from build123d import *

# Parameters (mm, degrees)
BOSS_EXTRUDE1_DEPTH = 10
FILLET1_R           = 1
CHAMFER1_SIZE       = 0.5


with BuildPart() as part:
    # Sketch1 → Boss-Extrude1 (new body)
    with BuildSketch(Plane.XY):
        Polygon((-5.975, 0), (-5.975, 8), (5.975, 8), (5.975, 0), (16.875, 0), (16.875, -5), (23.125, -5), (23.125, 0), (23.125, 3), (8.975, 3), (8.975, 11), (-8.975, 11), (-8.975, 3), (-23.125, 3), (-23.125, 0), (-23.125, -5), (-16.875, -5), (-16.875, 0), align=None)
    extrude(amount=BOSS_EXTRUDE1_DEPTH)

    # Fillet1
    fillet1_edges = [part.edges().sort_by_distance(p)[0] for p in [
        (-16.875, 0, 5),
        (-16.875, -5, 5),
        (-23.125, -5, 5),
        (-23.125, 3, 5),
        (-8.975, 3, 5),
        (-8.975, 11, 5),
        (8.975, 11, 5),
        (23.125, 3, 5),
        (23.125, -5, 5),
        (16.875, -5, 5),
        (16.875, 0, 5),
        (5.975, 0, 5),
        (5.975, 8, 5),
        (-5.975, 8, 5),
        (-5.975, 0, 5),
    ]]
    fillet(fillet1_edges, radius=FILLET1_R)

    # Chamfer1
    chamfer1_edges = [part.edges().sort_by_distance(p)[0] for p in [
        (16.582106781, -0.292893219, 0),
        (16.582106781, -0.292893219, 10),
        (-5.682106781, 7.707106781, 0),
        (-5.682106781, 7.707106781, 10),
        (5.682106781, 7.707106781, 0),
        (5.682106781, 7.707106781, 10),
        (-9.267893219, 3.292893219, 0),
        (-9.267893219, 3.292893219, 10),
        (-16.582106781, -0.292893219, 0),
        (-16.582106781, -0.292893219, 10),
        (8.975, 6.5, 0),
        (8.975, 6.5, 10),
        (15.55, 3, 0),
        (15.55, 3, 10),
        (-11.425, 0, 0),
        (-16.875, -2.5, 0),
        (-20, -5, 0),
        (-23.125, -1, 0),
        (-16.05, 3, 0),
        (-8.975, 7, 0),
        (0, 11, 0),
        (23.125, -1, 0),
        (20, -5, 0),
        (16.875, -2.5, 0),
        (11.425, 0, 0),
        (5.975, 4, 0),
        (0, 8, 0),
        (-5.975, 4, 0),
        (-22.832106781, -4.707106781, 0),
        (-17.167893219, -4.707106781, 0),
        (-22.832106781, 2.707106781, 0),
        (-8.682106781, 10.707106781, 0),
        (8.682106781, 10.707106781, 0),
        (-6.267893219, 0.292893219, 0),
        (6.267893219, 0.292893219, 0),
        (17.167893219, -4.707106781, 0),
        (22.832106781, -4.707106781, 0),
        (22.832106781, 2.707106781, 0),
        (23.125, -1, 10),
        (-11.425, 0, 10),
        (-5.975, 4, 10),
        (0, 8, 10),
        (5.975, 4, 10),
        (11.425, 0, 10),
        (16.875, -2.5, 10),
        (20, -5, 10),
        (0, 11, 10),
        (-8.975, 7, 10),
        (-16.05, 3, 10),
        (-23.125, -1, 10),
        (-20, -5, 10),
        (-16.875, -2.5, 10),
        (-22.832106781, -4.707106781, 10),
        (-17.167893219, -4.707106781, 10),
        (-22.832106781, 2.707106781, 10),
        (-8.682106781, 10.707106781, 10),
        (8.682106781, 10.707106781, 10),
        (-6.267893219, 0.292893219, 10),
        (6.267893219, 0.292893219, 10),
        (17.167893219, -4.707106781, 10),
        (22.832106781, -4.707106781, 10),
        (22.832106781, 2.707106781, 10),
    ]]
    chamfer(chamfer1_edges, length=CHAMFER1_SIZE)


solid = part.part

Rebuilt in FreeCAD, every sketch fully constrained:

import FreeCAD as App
import Part
import Sketcher
from FreeCAD import Vector


def edges_at(feature, points):
    """Names of the edges that pass closest to the given points."""
    edges = feature.Shape.Edges
    near = lambda p: min(range(len(edges)), key=lambda i: edges[i].distToShape(Part.Vertex(*p))[0])
    return sorted({f"Edge{near(p) + 1}" for p in points})

doc = App.newDocument("Part")
body = doc.addObject("PartDesign::Body", "Body")

sketch1 = doc.addObject("Sketcher::SketchObject", "Sketch")
body.addObject(sketch1)
sketch1.AttachmentSupport = (doc.XY_Plane, [""])
sketch1.MapMode = "FlatFace"
sketch1.addGeometry([
    Part.LineSegment(Vector(-6, 0, 0), Vector(-6, 8, 0)),
    Part.LineSegment(Vector(-6, 8, 0), Vector(6, 8, 0)),
    Part.LineSegment(Vector(6, 8, 0), Vector(6, 0, 0)),
    Part.LineSegment(Vector(6, 0, 0), Vector(17, 0, 0)),
    Part.LineSegment(Vector(17, 0, 0), Vector(17, -5, 0)),
    Part.LineSegment(Vector(17, -5, 0), Vector(23, -5, 0)),
    Part.LineSegment(Vector(23, -5, 0), Vector(23, 3, 0)),
    Part.LineSegment(Vector(23, 3, 0), Vector(9, 3, 0)),
    Part.LineSegment(Vector(9, 3, 0), Vector(9, 11, 0)),
    Part.LineSegment(Vector(9, 11, 0), Vector(-9, 11, 0)),
    Part.LineSegment(Vector(-9, 11, 0), Vector(-9, 3, 0)),
    Part.LineSegment(Vector(-9, 3, 0), Vector(-23, 3, 0)),
    Part.LineSegment(Vector(-23, 3, 0), Vector(-23, -5, 0)),
    Part.LineSegment(Vector(-23, -5, 0), Vector(-17, -5, 0)),
    Part.LineSegment(Vector(-17, -5, 0), Vector(-17, 0, 0)),
    Part.LineSegment(Vector(-17, 0, 0), Vector(-6, 0, 0)),
], False)
sketch1.addConstraint([
    Sketcher.Constraint("Coincident", 0, 2, 1, 1),
    Sketcher.Constraint("Coincident", 1, 2, 2, 1),
    Sketcher.Constraint("Coincident", 2, 2, 3, 1),
    Sketcher.Constraint("Coincident", 3, 2, 4, 1),
    Sketcher.Constraint("Coincident", 4, 2, 5, 1),
    Sketcher.Constraint("Coincident", 5, 2, 6, 1),
    Sketcher.Constraint("Coincident", 6, 2, 7, 1),
    Sketcher.Constraint("Coincident", 7, 2, 8, 1),
    Sketcher.Constraint("Coincident", 8, 2, 9, 1),
    Sketcher.Constraint("Coincident", 9, 2, 10, 1),
    Sketcher.Constraint("Coincident", 10, 2, 11, 1),
    Sketcher.Constraint("Coincident", 11, 2, 12, 1),
    Sketcher.Constraint("Coincident", 12, 2, 13, 1),
    Sketcher.Constraint("Coincident", 13, 2, 14, 1),
    Sketcher.Constraint("Coincident", 14, 2, 15, 1),
    Sketcher.Constraint("Coincident", 15, 2, 0, 1),
    Sketcher.Constraint("Vertical", 0),
    Sketcher.Constraint("Horizontal", 1),
    Sketcher.Constraint("Vertical", 2),
    Sketcher.Constraint("Horizontal", 3),
    Sketcher.Constraint("Vertical", 4),
    Sketcher.Constraint("Horizontal", 5),
    Sketcher.Constraint("Vertical", 6),
    Sketcher.Constraint("Horizontal", 7),
    Sketcher.Constraint("Vertical", 8),
    Sketcher.Constraint("Horizontal", 9),
    Sketcher.Constraint("Vertical", 10),
    Sketcher.Constraint("Horizontal", 11),
    Sketcher.Constraint("Vertical", 12),
    Sketcher.Constraint("Horizontal", 13),
    Sketcher.Constraint("Vertical", 14),
    Sketcher.Constraint("Horizontal", 15),
    Sketcher.Constraint("Symmetric", 3, 2, 14, 2, -1, 1),
    Sketcher.Constraint("Symmetric", 7, 2, 10, 2, -2),
    Sketcher.Constraint("Symmetric", 5, 2, 12, 2, -2),
    Sketcher.Constraint("Symmetric", 2, 2, 15, 2, -2),
    Sketcher.Constraint("Equal", 2, 6),
    Sketcher.Constraint("Equal", 6, 8),
    Sketcher.Constraint("DistanceY", 0, 1, 0, 2, 8.0),
    Sketcher.Constraint("DistanceY", 4, 2, 4, 1, 5.0),
    Sketcher.Constraint("DistanceX", 3, 1, 3, 2, 10.9),
    Sketcher.Constraint("DistanceX", 2, 2, 7, 2, 3.0),
    Sketcher.Constraint("DistanceX", 1, 1, 1, 2, 11.95),
    Sketcher.Constraint("DistanceX", 5, 1, 5, 2, 6.25),
])
pad1 = doc.addObject("PartDesign::Pad", "Pad")
body.addObject(pad1)
pad1.Profile = sketch1
pad1.Length = 10
doc.recompute()

fillet = doc.addObject("PartDesign::Fillet", "Fillet")
body.addObject(fillet)
fillet.Base = (pad1, edges_at(pad1, [
    (-16.875, 0, 5),
    (-16.875, -5, 5),
    (-23.125, -5, 5),
    (-23.125, 3, 5),
    (-8.975, 3, 5),
    (-8.975, 11, 5),
    (8.975, 11, 5),
    (23.125, 3, 5),
    (23.125, -5, 5),
    (16.875, -5, 5),
    (16.875, 0, 5),
    (5.975, 0, 5),
    (5.975, 8, 5),
    (-5.975, 8, 5),
    (-5.975, 0, 5),
]))
fillet.Radius = 1
doc.recompute()

chamfer = doc.addObject("PartDesign::Chamfer", "Chamfer")
body.addObject(chamfer)
chamfer.Base = (fillet, edges_at(fillet, [
    (16.582, -0.293, 0),
    (16.582, -0.293, 10),
    (-5.682, 7.707, 0),
    (-5.682, 7.707, 10),
    (5.682, 7.707, 0),
    (5.682, 7.707, 10),
    (-9.268, 3.293, 0),
    (-9.268, 3.293, 10),
    (-16.582, -0.293, 0),
    (-16.582, -0.293, 10),
    (8.975, 6.5, 0),
    (8.975, 6.5, 10),
    (15.55, 3, 0),
    (15.55, 3, 10),
    (-11.425, 0, 0),
    (-16.875, -2.5, 0),
    (-20, -5, 0),
    (-23.125, -1, 0),
    (-16.05, 3, 0),
    (-8.975, 7, 0),
    (0, 11, 0),
    (23.125, -1, 0),
    (20, -5, 0),
    (16.875, -2.5, 0),
    (11.425, 0, 0),
    (5.975, 4, 0),
    (0, 8, 0),
    (-5.975, 4, 0),
    (-22.832, -4.707, 0),
    (-17.168, -4.707, 0),
    (-22.832, 2.707, 0),
    (-8.682, 10.707, 0),
    (8.682, 10.707, 0),
    (-6.268, 0.293, 0),
    (6.268, 0.293, 0),
    (17.168, -4.707, 0),
    (22.832, -4.707, 0),
    (22.832, 2.707, 0),
    (23.125, -1, 10),
    (-11.425, 0, 10),
    (-5.975, 4, 10),
    (0, 8, 10),
    (5.975, 4, 10),
    (11.425, 0, 10),
    (16.875, -2.5, 10),
    (20, -5, 10),
    (0, 11, 10),
    (-8.975, 7, 10),
    (-16.05, 3, 10),
    (-23.125, -1, 10),
    (-20, -5, 10),
    (-16.875, -2.5, 10),
    (-22.832, -4.707, 10),
    (-17.168, -4.707, 10),
    (-22.832, 2.707, 10),
    (-8.682, 10.707, 10),
    (8.682, 10.707, 10),
    (-6.268, 0.293, 10),
    (6.268, 0.293, 10),
    (17.168, -4.707, 10),
    (22.832, -4.707, 10),
    (22.832, 2.707, 10),
]))
chamfer.Size = 0.5

doc.recompute()
